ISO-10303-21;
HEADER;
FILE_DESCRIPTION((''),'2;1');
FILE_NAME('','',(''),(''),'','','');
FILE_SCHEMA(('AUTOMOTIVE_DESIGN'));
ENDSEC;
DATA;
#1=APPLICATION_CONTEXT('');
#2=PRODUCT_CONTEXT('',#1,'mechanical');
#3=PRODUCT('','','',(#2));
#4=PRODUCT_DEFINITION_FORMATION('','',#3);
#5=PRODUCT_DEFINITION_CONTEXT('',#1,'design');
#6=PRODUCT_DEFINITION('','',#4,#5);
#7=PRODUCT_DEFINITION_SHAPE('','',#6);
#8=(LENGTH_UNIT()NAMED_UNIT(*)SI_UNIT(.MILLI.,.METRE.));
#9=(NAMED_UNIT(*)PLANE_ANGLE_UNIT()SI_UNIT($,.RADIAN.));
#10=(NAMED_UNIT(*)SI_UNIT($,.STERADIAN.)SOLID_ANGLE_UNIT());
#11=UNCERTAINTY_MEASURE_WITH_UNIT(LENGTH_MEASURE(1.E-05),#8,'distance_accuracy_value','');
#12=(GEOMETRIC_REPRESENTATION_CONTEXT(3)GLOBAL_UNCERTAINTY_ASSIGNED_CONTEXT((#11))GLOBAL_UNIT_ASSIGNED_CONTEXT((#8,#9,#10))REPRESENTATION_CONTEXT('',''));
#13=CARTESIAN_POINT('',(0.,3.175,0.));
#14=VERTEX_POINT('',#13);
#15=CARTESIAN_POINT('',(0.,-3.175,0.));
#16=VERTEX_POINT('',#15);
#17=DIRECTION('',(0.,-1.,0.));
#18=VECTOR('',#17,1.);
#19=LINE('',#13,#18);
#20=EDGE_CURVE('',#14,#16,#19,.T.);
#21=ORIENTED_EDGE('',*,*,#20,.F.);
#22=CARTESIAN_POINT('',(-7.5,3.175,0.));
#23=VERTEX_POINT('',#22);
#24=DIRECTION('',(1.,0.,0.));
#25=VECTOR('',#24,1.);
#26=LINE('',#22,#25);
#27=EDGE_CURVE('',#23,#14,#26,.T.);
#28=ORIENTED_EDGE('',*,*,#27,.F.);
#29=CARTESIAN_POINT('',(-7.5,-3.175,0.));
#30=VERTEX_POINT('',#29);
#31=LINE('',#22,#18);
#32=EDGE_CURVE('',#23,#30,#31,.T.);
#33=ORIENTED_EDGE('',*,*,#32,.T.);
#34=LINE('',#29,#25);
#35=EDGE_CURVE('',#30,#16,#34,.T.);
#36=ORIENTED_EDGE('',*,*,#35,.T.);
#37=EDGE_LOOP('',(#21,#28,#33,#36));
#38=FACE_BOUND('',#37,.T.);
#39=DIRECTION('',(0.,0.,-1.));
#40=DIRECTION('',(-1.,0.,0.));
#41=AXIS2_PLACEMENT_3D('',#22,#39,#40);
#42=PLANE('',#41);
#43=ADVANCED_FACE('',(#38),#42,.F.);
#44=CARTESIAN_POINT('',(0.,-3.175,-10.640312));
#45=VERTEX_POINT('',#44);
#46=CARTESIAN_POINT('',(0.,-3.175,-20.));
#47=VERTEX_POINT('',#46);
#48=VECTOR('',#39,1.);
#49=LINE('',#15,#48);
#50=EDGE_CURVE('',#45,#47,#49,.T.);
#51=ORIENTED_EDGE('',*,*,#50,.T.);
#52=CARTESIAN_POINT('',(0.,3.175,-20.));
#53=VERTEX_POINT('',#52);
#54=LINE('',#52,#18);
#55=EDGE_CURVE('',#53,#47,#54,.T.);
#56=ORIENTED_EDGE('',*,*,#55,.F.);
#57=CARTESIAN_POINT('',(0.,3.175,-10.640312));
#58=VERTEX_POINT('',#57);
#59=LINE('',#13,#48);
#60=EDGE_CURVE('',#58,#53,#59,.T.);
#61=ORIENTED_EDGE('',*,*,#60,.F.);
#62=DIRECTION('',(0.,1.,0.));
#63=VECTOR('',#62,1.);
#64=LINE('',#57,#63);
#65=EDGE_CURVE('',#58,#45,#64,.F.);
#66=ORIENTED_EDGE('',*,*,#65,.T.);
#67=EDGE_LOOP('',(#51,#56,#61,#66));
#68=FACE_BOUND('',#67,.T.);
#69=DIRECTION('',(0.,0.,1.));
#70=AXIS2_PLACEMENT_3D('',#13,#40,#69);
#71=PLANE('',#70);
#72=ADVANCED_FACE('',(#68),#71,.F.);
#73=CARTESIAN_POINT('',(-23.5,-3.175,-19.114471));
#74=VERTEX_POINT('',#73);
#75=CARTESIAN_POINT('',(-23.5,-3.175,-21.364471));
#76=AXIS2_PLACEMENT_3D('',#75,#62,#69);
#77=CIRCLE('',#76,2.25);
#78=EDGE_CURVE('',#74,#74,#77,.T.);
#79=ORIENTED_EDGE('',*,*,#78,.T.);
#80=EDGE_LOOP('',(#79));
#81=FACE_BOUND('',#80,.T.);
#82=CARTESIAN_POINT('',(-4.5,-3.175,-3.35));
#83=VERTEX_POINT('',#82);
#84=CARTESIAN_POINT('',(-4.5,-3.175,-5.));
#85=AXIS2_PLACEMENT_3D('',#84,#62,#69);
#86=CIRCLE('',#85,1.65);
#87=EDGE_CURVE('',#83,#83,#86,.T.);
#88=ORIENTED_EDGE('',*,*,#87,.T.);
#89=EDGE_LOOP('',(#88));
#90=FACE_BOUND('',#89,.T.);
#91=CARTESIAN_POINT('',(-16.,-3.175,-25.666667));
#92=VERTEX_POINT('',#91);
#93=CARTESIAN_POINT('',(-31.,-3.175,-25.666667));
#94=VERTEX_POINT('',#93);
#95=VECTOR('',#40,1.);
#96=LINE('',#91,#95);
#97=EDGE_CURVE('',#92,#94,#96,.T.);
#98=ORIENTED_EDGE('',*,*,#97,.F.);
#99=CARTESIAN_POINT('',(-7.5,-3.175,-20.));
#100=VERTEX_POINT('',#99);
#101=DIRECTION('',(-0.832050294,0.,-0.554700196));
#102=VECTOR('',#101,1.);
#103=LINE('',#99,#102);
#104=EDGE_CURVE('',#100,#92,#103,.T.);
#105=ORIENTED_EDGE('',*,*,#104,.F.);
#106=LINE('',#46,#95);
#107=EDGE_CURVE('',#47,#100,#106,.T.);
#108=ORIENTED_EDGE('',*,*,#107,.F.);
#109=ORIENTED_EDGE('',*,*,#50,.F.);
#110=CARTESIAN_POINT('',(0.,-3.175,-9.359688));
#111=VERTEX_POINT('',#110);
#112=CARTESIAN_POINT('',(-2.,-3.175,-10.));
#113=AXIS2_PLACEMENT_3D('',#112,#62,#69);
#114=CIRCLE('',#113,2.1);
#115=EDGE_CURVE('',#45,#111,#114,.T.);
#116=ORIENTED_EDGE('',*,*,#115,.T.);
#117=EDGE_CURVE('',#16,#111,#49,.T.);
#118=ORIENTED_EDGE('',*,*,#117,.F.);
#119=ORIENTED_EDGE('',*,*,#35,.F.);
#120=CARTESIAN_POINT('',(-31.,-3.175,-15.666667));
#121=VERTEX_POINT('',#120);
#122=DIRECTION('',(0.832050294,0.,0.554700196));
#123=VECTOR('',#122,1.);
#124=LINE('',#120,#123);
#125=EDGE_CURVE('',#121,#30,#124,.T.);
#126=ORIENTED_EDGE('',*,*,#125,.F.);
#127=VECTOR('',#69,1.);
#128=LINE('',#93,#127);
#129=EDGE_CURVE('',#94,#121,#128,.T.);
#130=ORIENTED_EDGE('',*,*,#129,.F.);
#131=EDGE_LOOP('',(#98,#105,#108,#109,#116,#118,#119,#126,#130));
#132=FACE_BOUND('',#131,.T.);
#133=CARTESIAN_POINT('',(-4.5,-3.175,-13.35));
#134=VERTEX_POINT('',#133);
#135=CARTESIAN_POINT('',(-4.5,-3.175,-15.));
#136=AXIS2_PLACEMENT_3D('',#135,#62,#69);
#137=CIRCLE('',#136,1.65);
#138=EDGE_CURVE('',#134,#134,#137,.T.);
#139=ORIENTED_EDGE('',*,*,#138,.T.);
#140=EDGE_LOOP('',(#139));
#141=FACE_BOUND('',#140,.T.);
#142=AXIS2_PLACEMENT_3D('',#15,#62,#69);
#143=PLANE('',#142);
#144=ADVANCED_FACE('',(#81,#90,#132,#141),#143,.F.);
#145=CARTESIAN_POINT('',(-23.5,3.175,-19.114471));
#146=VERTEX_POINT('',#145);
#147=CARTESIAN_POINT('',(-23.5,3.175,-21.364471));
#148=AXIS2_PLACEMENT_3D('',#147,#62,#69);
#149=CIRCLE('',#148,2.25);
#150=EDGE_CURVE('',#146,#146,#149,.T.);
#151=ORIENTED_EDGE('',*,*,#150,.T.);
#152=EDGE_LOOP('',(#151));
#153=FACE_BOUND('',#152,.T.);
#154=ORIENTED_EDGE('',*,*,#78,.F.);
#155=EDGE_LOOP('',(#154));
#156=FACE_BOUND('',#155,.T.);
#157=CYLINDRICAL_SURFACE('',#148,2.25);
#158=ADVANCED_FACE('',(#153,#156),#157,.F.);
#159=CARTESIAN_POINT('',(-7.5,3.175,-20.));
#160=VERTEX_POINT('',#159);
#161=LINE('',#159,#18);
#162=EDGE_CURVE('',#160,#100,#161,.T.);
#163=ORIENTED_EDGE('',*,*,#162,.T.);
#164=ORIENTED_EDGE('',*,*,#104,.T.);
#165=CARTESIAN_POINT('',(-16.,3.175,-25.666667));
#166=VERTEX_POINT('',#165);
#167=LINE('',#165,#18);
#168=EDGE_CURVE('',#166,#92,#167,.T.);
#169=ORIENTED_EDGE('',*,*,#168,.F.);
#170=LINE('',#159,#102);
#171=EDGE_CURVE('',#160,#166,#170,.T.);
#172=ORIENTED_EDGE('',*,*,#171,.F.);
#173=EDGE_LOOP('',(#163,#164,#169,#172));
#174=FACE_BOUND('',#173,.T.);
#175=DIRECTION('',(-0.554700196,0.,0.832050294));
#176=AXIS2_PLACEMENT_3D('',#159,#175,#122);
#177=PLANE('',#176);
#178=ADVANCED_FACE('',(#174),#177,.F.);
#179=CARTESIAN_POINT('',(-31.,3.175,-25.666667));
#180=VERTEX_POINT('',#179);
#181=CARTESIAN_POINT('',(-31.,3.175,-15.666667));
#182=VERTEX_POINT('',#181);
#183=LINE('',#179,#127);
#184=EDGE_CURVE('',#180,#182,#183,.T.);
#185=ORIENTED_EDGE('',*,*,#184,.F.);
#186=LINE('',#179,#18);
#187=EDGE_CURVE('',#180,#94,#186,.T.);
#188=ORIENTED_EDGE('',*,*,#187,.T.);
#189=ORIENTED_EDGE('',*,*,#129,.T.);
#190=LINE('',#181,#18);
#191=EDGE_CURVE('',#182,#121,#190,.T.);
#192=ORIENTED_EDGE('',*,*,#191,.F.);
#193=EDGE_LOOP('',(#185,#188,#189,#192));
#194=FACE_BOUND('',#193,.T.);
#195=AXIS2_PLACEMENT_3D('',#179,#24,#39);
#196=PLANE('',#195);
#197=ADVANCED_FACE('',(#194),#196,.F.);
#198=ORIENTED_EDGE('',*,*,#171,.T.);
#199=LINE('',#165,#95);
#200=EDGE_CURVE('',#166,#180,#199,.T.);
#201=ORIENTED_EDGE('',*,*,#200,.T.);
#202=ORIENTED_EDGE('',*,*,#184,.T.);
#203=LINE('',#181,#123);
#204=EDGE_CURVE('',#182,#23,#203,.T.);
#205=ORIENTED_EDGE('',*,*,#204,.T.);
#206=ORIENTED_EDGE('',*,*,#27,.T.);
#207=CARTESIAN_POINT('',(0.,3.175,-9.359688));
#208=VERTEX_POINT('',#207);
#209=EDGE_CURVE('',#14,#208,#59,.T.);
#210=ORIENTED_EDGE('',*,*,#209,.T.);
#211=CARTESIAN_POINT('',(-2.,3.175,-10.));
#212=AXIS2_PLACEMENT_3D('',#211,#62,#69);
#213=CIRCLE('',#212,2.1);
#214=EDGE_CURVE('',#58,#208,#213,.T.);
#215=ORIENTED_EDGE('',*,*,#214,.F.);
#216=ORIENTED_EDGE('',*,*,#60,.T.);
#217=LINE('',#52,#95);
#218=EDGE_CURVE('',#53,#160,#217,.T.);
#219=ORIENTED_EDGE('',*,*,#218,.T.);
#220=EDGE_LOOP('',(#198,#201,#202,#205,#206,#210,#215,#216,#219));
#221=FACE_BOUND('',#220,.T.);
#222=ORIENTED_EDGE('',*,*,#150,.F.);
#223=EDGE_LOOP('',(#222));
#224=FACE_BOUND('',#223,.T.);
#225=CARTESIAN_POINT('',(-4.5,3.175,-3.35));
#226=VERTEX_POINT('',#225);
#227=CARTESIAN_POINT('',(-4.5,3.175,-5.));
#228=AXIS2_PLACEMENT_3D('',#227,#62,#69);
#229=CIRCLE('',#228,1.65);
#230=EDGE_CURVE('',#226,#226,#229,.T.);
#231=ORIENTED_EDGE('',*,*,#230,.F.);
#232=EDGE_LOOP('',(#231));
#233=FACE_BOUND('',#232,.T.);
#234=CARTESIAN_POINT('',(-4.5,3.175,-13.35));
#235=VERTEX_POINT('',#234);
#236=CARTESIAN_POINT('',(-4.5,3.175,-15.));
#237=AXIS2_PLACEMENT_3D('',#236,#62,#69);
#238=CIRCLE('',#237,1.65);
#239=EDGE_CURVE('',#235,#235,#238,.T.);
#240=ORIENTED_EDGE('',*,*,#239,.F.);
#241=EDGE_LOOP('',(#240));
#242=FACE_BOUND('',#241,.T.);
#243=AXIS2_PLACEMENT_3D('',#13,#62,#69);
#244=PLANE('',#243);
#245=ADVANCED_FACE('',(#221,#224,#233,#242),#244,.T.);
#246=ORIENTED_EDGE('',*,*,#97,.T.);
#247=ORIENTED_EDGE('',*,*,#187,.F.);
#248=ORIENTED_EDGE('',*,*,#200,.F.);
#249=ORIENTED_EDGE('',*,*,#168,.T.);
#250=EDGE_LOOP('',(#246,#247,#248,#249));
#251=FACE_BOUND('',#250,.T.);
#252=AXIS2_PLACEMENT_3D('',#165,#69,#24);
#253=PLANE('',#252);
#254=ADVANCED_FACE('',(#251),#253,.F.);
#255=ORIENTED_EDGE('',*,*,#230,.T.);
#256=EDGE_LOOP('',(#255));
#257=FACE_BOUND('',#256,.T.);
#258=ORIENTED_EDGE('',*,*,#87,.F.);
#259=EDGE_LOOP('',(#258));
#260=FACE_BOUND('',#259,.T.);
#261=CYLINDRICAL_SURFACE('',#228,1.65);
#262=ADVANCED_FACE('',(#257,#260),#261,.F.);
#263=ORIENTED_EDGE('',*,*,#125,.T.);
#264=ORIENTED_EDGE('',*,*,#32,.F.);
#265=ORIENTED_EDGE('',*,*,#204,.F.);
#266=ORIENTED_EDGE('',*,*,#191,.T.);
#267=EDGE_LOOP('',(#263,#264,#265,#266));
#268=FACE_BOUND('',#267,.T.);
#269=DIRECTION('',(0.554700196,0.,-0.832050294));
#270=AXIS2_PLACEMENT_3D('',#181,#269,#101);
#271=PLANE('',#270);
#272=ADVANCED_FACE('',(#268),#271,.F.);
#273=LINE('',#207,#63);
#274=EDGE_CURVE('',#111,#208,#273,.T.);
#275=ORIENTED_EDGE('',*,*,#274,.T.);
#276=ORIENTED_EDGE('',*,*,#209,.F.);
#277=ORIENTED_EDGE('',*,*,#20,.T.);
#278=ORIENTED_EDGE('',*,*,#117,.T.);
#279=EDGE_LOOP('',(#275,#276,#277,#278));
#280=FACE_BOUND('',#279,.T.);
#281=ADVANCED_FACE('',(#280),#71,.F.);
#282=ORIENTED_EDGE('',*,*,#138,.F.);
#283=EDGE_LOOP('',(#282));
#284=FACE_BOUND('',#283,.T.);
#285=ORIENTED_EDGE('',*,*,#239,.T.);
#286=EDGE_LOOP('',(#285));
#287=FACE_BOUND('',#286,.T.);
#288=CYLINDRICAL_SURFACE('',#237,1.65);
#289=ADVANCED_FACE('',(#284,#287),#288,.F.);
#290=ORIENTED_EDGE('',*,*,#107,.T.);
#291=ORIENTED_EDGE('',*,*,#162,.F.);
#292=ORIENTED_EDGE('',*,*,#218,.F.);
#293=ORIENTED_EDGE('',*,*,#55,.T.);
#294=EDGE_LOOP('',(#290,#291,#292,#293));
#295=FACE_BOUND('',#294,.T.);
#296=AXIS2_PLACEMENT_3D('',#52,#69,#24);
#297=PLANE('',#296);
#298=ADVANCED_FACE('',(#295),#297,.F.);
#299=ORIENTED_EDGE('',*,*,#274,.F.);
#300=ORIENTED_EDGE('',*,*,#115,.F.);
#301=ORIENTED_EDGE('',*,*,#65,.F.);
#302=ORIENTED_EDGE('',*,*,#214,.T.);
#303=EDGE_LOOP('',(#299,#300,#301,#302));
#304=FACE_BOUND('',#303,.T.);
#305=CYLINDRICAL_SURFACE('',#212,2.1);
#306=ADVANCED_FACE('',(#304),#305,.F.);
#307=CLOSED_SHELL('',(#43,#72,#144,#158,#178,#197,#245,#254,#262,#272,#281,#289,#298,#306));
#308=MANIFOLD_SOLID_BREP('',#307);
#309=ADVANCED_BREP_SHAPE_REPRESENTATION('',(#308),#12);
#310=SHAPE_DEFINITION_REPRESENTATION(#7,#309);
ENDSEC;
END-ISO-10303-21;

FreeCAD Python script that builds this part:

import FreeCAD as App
import Part
import Sketcher
from FreeCAD import Vector
Q = App.Units.Quantity

doc = App.newDocument("Part")
params = doc.addObject("Spreadsheet::Sheet", "Params")
for row, (alias, value) in enumerate([
    ("sketch1_width", "15 mm"),
    ("sketch1_height", "20 mm"),
    ("sketch1_height2", "10 mm"),
    ("sketch1_width2", "7.5 mm"),
    ("pad1_length", "6.35 mm"),
    ("sketch2_diameter", "4.5 mm"),
    ("hole_diameter", "4.5 mm"),
    ("sketch3_diameter", "3.3 mm"),
    ("hole2_diameter", "3.3 mm"),
    ("sketch4_diameter", "4.2 mm"),
    ("hole3_diameter", "4.2 mm"),
], start=1):
    params.set(f"A{row}", alias)
    params.set(f"B{row}", "=" + value)
    params.setAlias(f"B{row}", alias)

body = doc.addObject("PartDesign::Body", "Body")

# Sketch on XZ plane
sketch1 = body.newObject("Sketcher::SketchObject", "Sketch")
sketch1.AttachmentSupport = (doc.getObject("XZ_Plane"), [""])
sketch1.MapMode = "FlatFace"
sketch1.addGeometry([
    Part.LineSegment(Vector(0, 0, 0), Vector(0, -20, 0)),  # 0
    Part.LineSegment(Vector(0, -20, 0), Vector(-8, -20, 0)),  # 1
    Part.LineSegment(Vector(-8, -20, 0), Vector(-16, -26, 0)),  # 2
    Part.LineSegment(Vector(-16, -26, 0), Vector(-31, -26, 0)),  # 3
    Part.LineSegment(Vector(-31, -26, 0), Vector(-31, -16, 0)),  # 4
    Part.LineSegment(Vector(-31, -16, 0), Vector(-8, 0, 0)),  # 5
    Part.LineSegment(Vector(-8, 0, 0), Vector(0, 0, 0)),  # 6
], False)
sketch1.addConstraint([
    Sketcher.Constraint("Coincident", 0, 2, 1, 1),
    Sketcher.Constraint("Coincident", 1, 2, 2, 1),
    Sketcher.Constraint("Coincident", 2, 2, 3, 1),
    Sketcher.Constraint("Coincident", 3, 2, 4, 1),
    Sketcher.Constraint("Coincident", 4, 2, 5, 1),
    Sketcher.Constraint("Coincident", 5, 2, 6, 1),
    Sketcher.Constraint("Coincident", 6, 2, 0, 1),
    Sketcher.Constraint("Vertical", 0),
    Sketcher.Constraint("Horizontal", 1),
    Sketcher.Constraint("Horizontal", 3),
    Sketcher.Constraint("Vertical", 4),
    Sketcher.Constraint("Horizontal", 6),
    Sketcher.Constraint("Coincident", 6, 2, -1, 1),
    Sketcher.Constraint("Parallel", 2, 5),
    Sketcher.Constraint("Vertical", 1, 2, 5, 2),
    Sketcher.Constraint("DistanceX", 3, 2, 3, 1, Q("15 mm")),
    Sketcher.Constraint("DistanceY", 0, 2, 0, 1, Q("20 mm")),
    Sketcher.Constraint("DistanceY", 4, 1, 4, 2, Q("10 mm")),
    Sketcher.Constraint("DistanceX", 1, 2, 1, 1, Q("7.5 mm")),
    Sketcher.Constraint("DistanceX", 2, 2, -1, 1, Q("16 mm")),
])
sketch1.setExpression("Constraints[15]", "Params.sketch1_width")
sketch1.setExpression("Constraints[16]", "Params.sketch1_height")
sketch1.setExpression("Constraints[17]", "Params.sketch1_height2")
sketch1.setExpression("Constraints[18]", "Params.sketch1_width2")
pad1 = body.newObject("PartDesign::Pad", "Pad")
pad1.Profile = sketch1
pad1.setExpression("Length", "Params.pad1_length")
pad1.Midplane = True

# Sketch on XZ plane
sketch2 = body.newObject("Sketcher::SketchObject", "Sketch001")
sketch2.AttachmentSupport = (doc.getObject("XZ_Plane"), [""])
sketch2.MapMode = "FlatFace"
sketch2.AttachmentOffset = App.Placement(Vector(0, 0, -3.175), App.Rotation())
sketch2.addGeometry(Part.Circle(Vector(-23.5, -21.4, 0), Vector(0, 0, 1), 2.2), False)
sketch2.addConstraint([
    Sketcher.Constraint("Diameter", 0, Q("4.5 mm")),
    Sketcher.Constraint("DistanceX", 0, 3, -1, 1, Q("23.5 mm")),
    Sketcher.Constraint("DistanceY", 0, 3, -1, 1, Q("21.364471 mm")),
])
sketch2.setExpression("Constraints[0]", "Params.sketch2_diameter")
doc.recompute()
hole = body.newObject("PartDesign::Hole", "Hole")
hole.Profile = sketch2
hole.ThreadType = "None"
hole.setExpression("Diameter", "Params.hole_diameter")
hole.DepthType = "ThroughAll"
hole.Reversed = True

# Sketch on XZ plane
sketch3 = body.newObject("Sketcher::SketchObject", "Sketch002")
sketch3.AttachmentSupport = (doc.getObject("XZ_Plane"), [""])
sketch3.MapMode = "FlatFace"
sketch3.AttachmentOffset = App.Placement(Vector(0, 0, -3.175), App.Rotation())
sketch3.addGeometry([
    Part.Circle(Vector(-4.5, -15, 0), Vector(0, 0, 1), 1.6),
    Part.Circle(Vector(-4.5, -5, 0), Vector(0, 0, 1), 1.6),
], False)
sketch3.addConstraint([
    Sketcher.Constraint("Equal", 0, 1),
    Sketcher.Constraint("Vertical", 0, 3, 1, 3),
    Sketcher.Constraint("Diameter", 0, Q("3.3 mm")),
    Sketcher.Constraint("DistanceY", 0, 3, -1, 1, Q("15 mm")),
    Sketcher.Constraint("DistanceY", 1, 3, -1, 1, Q("5 mm")),
    Sketcher.Constraint("DistanceX", 0, 3, -1, 1, Q("4.5 mm")),
])
sketch3.setExpression("Constraints[2]", "Params.sketch3_diameter")
doc.recompute()
hole2 = body.newObject("PartDesign::Hole", "Hole001")
hole2.Profile = sketch3
hole2.ThreadType = "None"
hole2.setExpression("Diameter", "Params.hole2_diameter")
hole2.DepthType = "ThroughAll"
hole2.Reversed = True

# Sketch on XZ plane
sketch4 = body.newObject("Sketcher::SketchObject", "Sketch003")
sketch4.AttachmentSupport = (doc.getObject("XZ_Plane"), [""])
sketch4.MapMode = "FlatFace"
sketch4.AttachmentOffset = App.Placement(Vector(0, 0, -3.175), App.Rotation())
sketch4.addGeometry(Part.Circle(Vector(-2, -10, 0), Vector(0, 0, 1), 2.1), False)
sketch4.addConstraint([
    Sketcher.Constraint("Diameter", 0, Q("4.2 mm")),
    Sketcher.Constraint("DistanceX", 0, 3, -1, 1, Q("2 mm")),
    Sketcher.Constraint("DistanceY", 0, 3, -1, 1, Q("10 mm")),
])
sketch4.setExpression("Constraints[0]", "Params.sketch4_diameter")
doc.recompute()
hole3 = body.newObject("PartDesign::Hole", "Hole002")
hole3.Profile = sketch4
hole3.ThreadType = "None"
hole3.setExpression("Diameter", "Params.hole3_diameter")
hole3.DepthType = "ThroughAll"
hole3.Reversed = True

doc.recompute()
